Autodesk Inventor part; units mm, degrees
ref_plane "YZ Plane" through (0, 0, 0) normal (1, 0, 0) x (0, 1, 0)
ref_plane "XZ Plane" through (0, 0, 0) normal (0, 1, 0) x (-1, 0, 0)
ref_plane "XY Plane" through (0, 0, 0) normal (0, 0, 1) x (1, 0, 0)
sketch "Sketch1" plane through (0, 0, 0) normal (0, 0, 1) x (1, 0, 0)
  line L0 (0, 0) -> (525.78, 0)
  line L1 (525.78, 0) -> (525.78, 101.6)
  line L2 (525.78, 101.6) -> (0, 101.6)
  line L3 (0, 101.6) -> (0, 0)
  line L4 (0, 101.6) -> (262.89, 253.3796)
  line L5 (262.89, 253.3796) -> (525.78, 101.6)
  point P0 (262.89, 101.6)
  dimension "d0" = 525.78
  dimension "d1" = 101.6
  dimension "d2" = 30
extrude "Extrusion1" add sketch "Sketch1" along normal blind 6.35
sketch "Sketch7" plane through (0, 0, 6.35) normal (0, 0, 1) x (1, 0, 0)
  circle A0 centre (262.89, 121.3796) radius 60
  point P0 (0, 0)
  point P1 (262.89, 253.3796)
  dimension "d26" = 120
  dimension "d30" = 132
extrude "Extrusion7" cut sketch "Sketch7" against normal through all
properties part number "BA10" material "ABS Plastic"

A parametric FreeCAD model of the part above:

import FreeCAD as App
import Part
import Sketcher
Q = App.Units.Quantity


def add_polygon(sketch, points):
    """Adds a closed chain of lines whose ends are joined by coincident constraints."""
    first, n = sketch.GeometryCount, len(points)
    for a, b in zip(points, points[1:] + points[:1]):
        sketch.addGeometry(Part.LineSegment(App.Vector(*a, 0), App.Vector(*b, 0)), False)
    for i in range(n):
        sketch.addConstraint(Sketcher.Constraint("Coincident", first + i, 2, first + (i + 1) % n, 1))

doc = App.newDocument("Part")
body = doc.addObject("PartDesign::Body", "Body")

# Sketch on XY plane
sketch1 = body.newObject("Sketcher::SketchObject", "Sketch")
sketch1.AttachmentSupport = (doc.getObject("XY_Plane"), [""])
sketch1.MapMode = "FlatFace"
add_polygon(sketch1, [(0, 101.6), (0, 0), (525.78, 0), (525.78, 101.6), (262.89, 253.3796)])  # lines 0-4
sketch1.addConstraint([
    Sketcher.Constraint("Vertical", 0),
    Sketcher.Constraint("Horizontal", 1),
    Sketcher.Constraint("Vertical", 2),
    Sketcher.Constraint("Coincident", 0, 2, -1, 1),
    Sketcher.Constraint("Horizontal", 2, 2, 4, 2),
    Sketcher.Constraint("Equal", 3, 4),
    Sketcher.Constraint("DistanceY", 0, 2, 0, 1, Q("4 in")),
    Sketcher.Constraint("DistanceX", 1, 1, 1, 2, Q("20.7 in")),
    Sketcher.Constraint("Angle", 3, Q("150 deg")),
])
pad1 = body.newObject("PartDesign::Pad", "Pad")
pad1.Profile = sketch1
pad1.Length = Q("0.25 in")

# Sketch on XY plane
sketch2 = body.newObject("Sketcher::SketchObject", "Sketch001")
sketch2.AttachmentSupport = (doc.getObject("XY_Plane"), [""])
sketch2.MapMode = "FlatFace"
sketch2.AttachmentOffset = App.Placement(App.Vector(0, 0, 0.25 * 25.4), App.Rotation())
sketch2.addGeometry(Part.Circle(App.Vector(262.89, 121.3796, 0), App.Vector(0, 0, 1), 60), False)
sketch2.addConstraint([
    Sketcher.Constraint("Diameter", 0, Q("4.7244 in")),
    Sketcher.Constraint("DistanceX", -1, 1, 0, 3, Q("10.35 in")),
    Sketcher.Constraint("DistanceY", -1, 1, 0, 3, Q("121.3796 mm")),
])
pocket1 = body.newObject("PartDesign::Pocket", "Pocket")
pocket1.Profile = sketch2
pocket1.Type = "ThroughAll"

doc.recompute()
